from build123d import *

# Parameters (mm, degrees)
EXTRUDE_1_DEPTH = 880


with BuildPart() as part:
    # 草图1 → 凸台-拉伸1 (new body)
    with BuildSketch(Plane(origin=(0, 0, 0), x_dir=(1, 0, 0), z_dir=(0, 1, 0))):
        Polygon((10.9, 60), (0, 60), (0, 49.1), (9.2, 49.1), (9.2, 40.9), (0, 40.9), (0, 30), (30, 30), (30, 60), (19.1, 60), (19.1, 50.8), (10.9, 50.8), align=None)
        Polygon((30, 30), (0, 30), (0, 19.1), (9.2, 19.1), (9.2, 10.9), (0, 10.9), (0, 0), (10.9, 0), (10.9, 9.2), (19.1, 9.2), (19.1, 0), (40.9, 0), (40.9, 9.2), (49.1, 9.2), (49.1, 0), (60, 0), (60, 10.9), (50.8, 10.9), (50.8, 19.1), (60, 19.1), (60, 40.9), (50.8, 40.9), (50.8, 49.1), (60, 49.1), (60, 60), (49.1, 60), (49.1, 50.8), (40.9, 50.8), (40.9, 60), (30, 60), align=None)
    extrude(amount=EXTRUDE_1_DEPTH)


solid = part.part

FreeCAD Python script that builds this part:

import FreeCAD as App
import Part
import Sketcher

V = App.Vector
Q = App.Units.Quantity

doc = App.newDocument("Part")
params = doc.addObject("Spreadsheet::Sheet", "Params")
for row, (alias, value) in enumerate([
    ("sketch1_width", "10.9 mm"),
    ("sketch1_width2", "9.2 mm"),
    ("sketch1_width3", "8.2 mm"),
    ("sketch1_width4", "21.8 mm"),
    ("pad1_length", "880 mm"),
], start=1):
    params.set(f"A{row}", alias)
    params.set(f"B{row}", "=" + value)
    params.setAlias(f"B{row}", alias)

body = doc.addObject("PartDesign::Body", "Body")

# Sketch on XZ plane
sketch1 = body.newObject("Sketcher::SketchObject", "Sketch")
sketch1.AttachmentSupport = (doc.getObject("XZ_Plane"), [""])
sketch1.MapMode = "FlatFace"
sketch1.addGeometry([
    Part.LineSegment(V(11, -60, 0), V(0, -60, 0)),  # 0
    Part.LineSegment(V(0, -60, 0), V(0, -49, 0)),  # 1
    Part.LineSegment(V(0, -49, 0), V(9, -49, 0)),  # 2
    Part.LineSegment(V(9, -49, 0), V(9, -41, 0)),  # 3
    Part.LineSegment(V(9, -41, 0), V(0, -41, 0)),  # 4
    Part.LineSegment(V(0, -41, 0), V(0, -19, 0)),  # 5
    Part.LineSegment(V(0, -19, 0), V(9, -19, 0)),  # 6
    Part.LineSegment(V(9, -19, 0), V(9, -11, 0)),  # 7
    Part.LineSegment(V(9, -11, 0), V(0, -11, 0)),  # 8
    Part.LineSegment(V(0, -11, 0), V(0, 0, 0)),  # 9
    Part.LineSegment(V(0, 0, 0), V(11, 0, 0)),  # 10
    Part.LineSegment(V(11, 0, 0), V(11, -9, 0)),  # 11
    Part.LineSegment(V(11, -9, 0), V(19, -9, 0)),  # 12
    Part.LineSegment(V(19, -9, 0), V(19, 0, 0)),  # 13
    Part.LineSegment(V(19, 0, 0), V(41, 0, 0)),  # 14
    Part.LineSegment(V(41, 0, 0), V(41, -9, 0)),  # 15
    Part.LineSegment(V(41, -9, 0), V(49, -9, 0)),  # 16
    Part.LineSegment(V(49, -9, 0), V(49, 0, 0)),  # 17
    Part.LineSegment(V(49, 0, 0), V(60, 0, 0)),  # 18
    Part.LineSegment(V(60, 0, 0), V(60, -11, 0)),  # 19
    Part.LineSegment(V(60, -11, 0), V(51, -11, 0)),  # 20
    Part.LineSegment(V(51, -11, 0), V(51, -19, 0)),  # 21
    Part.LineSegment(V(51, -19, 0), V(60, -19, 0)),  # 22
    Part.LineSegment(V(60, -19, 0), V(60, -41, 0)),  # 23
    Part.LineSegment(V(60, -41, 0), V(51, -41, 0)),  # 24
    Part.LineSegment(V(51, -41, 0), V(51, -49, 0)),  # 25
    Part.LineSegment(V(51, -49, 0), V(60, -49, 0)),  # 26
    Part.LineSegment(V(60, -49, 0), V(60, -60, 0)),  # 27
    Part.LineSegment(V(60, -60, 0), V(49, -60, 0)),  # 28
    Part.LineSegment(V(49, -60, 0), V(49, -51, 0)),  # 29
    Part.LineSegment(V(49, -51, 0), V(41, -51, 0)),  # 30
    Part.LineSegment(V(41, -51, 0), V(41, -60, 0)),  # 31
    Part.LineSegment(V(41, -60, 0), V(19, -60, 0)),  # 32
    Part.LineSegment(V(19, -60, 0), V(19, -51, 0)),  # 33
    Part.LineSegment(V(19, -51, 0), V(11, -51, 0)),  # 34
    Part.LineSegment(V(11, -51, 0), V(11, -60, 0)),  # 35
], False)
sketch1.addConstraint([
    Sketcher.Constraint("Coincident", 0, 2, 1, 1),
    Sketcher.Constraint("Coincident", 1, 2, 2, 1),
    Sketcher.Constraint("Coincident", 2, 2, 3, 1),
    Sketcher.Constraint("Coincident", 3, 2, 4, 1),
    Sketcher.Constraint("Coincident", 4, 2, 5, 1),
    Sketcher.Constraint("Coincident", 5, 2, 6, 1),
    Sketcher.Constraint("Coincident", 6, 2, 7, 1),
    Sketcher.Constraint("Coincident", 7, 2, 8, 1),
    Sketcher.Constraint("Coincident", 8, 2, 9, 1),
    Sketcher.Constraint("Coincident", 9, 2, 10, 1),
    Sketcher.Constraint("Coincident", 10, 2, 11, 1),
    Sketcher.Constraint("Coincident", 11, 2, 12, 1),
    Sketcher.Constraint("Coincident", 12, 2, 13, 1),
    Sketcher.Constraint("Coincident", 13, 2, 14, 1),
    Sketcher.Constraint("Coincident", 14, 2, 15, 1),
    Sketcher.Constraint("Coincident", 15, 2, 16, 1),
    Sketcher.Constraint("Coincident", 16, 2, 17, 1),
    Sketcher.Constraint("Coincident", 17, 2, 18, 1),
    Sketcher.Constraint("Coincident", 18, 2, 19, 1),
    Sketcher.Constraint("Coincident", 19, 2, 20, 1),
    Sketcher.Constraint("Coincident", 20, 2, 21, 1),
    Sketcher.Constraint("Coincident", 21, 2, 22, 1),
    Sketcher.Constraint("Coincident", 22, 2, 23, 1),
    Sketcher.Constraint("Coincident", 23, 2, 24, 1),
    Sketcher.Constraint("Coincident", 24, 2, 25, 1),
    Sketcher.Constraint("Coincident", 25, 2, 26, 1),
    Sketcher.Constraint("Coincident", 26, 2, 27, 1),
    Sketcher.Constraint("Coincident", 27, 2, 28, 1),
    Sketcher.Constraint("Coincident", 28, 2, 29, 1),
    Sketcher.Constraint("Coincident", 29, 2, 30, 1),
    Sketcher.Constraint("Coincident", 30, 2, 31, 1),
    Sketcher.Constraint("Coincident", 31, 2, 32, 1),
    Sketcher.Constraint("Coincident", 32, 2, 33, 1),
    Sketcher.Constraint("Coincident", 33, 2, 34, 1),
    Sketcher.Constraint("Coincident", 34, 2, 35, 1),
    Sketcher.Constraint("Coincident", 35, 2, 0, 1),
    Sketcher.Constraint("Horizontal", 0),
    Sketcher.Constraint("Vertical", 1),
    Sketcher.Constraint("Horizontal", 2),
    Sketcher.Constraint("Vertical", 3),
    Sketcher.Constraint("Horizontal", 4),
    Sketcher.Constraint("Vertical", 5),
    Sketcher.Constraint("Horizontal", 6),
    Sketcher.Constraint("Vertical", 7),
    Sketcher.Constraint("Horizontal", 8),
    Sketcher.Constraint("Vertical", 9),
    Sketcher.Constraint("Horizontal", 10),
    Sketcher.Constraint("Vertical", 11),
    Sketcher.Constraint("Horizontal", 12),
    Sketcher.Constraint("Vertical", 13),
    Sketcher.Constraint("Horizontal", 14),
    Sketcher.Constraint("Vertical", 15),
    Sketcher.Constraint("Horizontal", 16),
    Sketcher.Constraint("Vertical", 17),
    Sketcher.Constraint("Horizontal", 18),
    Sketcher.Constraint("Vertical", 19),
    Sketcher.Constraint("Horizontal", 20),
    Sketcher.Constraint("Vertical", 21),
    Sketcher.Constraint("Horizontal", 22),
    Sketcher.Constraint("Vertical", 23),
    Sketcher.Constraint("Horizontal", 24),
    Sketcher.Constraint("Vertical", 25),
    Sketcher.Constraint("Horizontal", 26),
    Sketcher.Constraint("Vertical", 27),
    Sketcher.Constraint("Horizontal", 28),
    Sketcher.Constraint("Vertical", 29),
    Sketcher.Constraint("Horizontal", 30),
    Sketcher.Constraint("Vertical", 31),
    Sketcher.Constraint("Horizontal", 32),
    Sketcher.Constraint("Vertical", 33),
    Sketcher.Constraint("Horizontal", 34),
    Sketcher.Constraint("Vertical", 35),
    Sketcher.Constraint("Coincident", 9, 2, -1, 1),
    Sketcher.Constraint("PointOnObject", 0, 2, -2),
    Sketcher.Constraint("PointOnObject", 4, 2, -2),
    Sketcher.Constraint("PointOnObject", 13, 2, -1),
    Sketcher.Constraint("PointOnObject", 17, 2, -1),
    Sketcher.Constraint("Horizontal", 12, 2, 15, 2),
    Sketcher.Constraint("Horizontal", 8, 2, 19, 2),
    Sketcher.Constraint("Horizontal", 6, 2, 21, 2),
    Sketcher.Constraint("Horizontal", 4, 2, 23, 2),
    Sketcher.Constraint("Horizontal", 2, 2, 25, 2),
    Sketcher.Constraint("Horizontal", 0, 2, 27, 2),
    Sketcher.Constraint("Horizontal", 28, 2, 31, 2),
    Sketcher.Constraint("Horizontal", 30, 2, 33, 2),
    Sketcher.Constraint("Vertical", 3, 2, 6, 2),
    Sketcher.Constraint("Vertical", 19, 2, 22, 2),
    Sketcher.Constraint("Vertical", 21, 2, 24, 2),
    Sketcher.Constraint("Vertical", 23, 2, 26, 2),
    Sketcher.Constraint("Vertical", 17, 2, 28, 2),
    Sketcher.Constraint("Vertical", 15, 2, 30, 2),
    Sketcher.Constraint("Vertical", 13, 2, 32, 2),
    Sketcher.Constraint("Vertical", 11, 2, 34, 2),
    Sketcher.Constraint("Equal", 12, 16),
    Sketcher.Constraint("Equal", 10, 18),
    Sketcher.Constraint("Equal", 8, 20),
    Sketcher.Constraint("Equal", 28, 1),
    Sketcher.Constraint("Equal", 34, 3),
    Sketcher.Constraint("Equal", 32, 5),
    Sketcher.Constraint("Equal", 3, 7),
    Sketcher.Constraint("Equal", 1, 9),
    Sketcher.Constraint("Equal", 26, 11),
    Sketcher.Constraint("Equal", 17, 29),
    Sketcher.Constraint("DistanceX", 0, 2, 0, 1, Q("10.9 mm")),
    Sketcher.Constraint("DistanceX", 2, 1, 2, 2, Q("9.2 mm")),
    Sketcher.Constraint("DistanceX", 12, 1, 12, 2, Q("8.2 mm")),
    Sketcher.Constraint("DistanceX", 14, 1, 14, 2, Q("21.8 mm")),
])
sketch1.setExpression("Constraints[103]", "Params.sketch1_width")
sketch1.setExpression("Constraints[104]", "Params.sketch1_width2")
sketch1.setExpression("Constraints[105]", "Params.sketch1_width3")
sketch1.setExpression("Constraints[106]", "Params.sketch1_width4")
pad1 = body.newObject("PartDesign::Pad", "Pad")
pad1.Profile = sketch1
pad1.setExpression("Length", "Params.pad1_length")
pad1.Reversed = True

doc.recompute()
